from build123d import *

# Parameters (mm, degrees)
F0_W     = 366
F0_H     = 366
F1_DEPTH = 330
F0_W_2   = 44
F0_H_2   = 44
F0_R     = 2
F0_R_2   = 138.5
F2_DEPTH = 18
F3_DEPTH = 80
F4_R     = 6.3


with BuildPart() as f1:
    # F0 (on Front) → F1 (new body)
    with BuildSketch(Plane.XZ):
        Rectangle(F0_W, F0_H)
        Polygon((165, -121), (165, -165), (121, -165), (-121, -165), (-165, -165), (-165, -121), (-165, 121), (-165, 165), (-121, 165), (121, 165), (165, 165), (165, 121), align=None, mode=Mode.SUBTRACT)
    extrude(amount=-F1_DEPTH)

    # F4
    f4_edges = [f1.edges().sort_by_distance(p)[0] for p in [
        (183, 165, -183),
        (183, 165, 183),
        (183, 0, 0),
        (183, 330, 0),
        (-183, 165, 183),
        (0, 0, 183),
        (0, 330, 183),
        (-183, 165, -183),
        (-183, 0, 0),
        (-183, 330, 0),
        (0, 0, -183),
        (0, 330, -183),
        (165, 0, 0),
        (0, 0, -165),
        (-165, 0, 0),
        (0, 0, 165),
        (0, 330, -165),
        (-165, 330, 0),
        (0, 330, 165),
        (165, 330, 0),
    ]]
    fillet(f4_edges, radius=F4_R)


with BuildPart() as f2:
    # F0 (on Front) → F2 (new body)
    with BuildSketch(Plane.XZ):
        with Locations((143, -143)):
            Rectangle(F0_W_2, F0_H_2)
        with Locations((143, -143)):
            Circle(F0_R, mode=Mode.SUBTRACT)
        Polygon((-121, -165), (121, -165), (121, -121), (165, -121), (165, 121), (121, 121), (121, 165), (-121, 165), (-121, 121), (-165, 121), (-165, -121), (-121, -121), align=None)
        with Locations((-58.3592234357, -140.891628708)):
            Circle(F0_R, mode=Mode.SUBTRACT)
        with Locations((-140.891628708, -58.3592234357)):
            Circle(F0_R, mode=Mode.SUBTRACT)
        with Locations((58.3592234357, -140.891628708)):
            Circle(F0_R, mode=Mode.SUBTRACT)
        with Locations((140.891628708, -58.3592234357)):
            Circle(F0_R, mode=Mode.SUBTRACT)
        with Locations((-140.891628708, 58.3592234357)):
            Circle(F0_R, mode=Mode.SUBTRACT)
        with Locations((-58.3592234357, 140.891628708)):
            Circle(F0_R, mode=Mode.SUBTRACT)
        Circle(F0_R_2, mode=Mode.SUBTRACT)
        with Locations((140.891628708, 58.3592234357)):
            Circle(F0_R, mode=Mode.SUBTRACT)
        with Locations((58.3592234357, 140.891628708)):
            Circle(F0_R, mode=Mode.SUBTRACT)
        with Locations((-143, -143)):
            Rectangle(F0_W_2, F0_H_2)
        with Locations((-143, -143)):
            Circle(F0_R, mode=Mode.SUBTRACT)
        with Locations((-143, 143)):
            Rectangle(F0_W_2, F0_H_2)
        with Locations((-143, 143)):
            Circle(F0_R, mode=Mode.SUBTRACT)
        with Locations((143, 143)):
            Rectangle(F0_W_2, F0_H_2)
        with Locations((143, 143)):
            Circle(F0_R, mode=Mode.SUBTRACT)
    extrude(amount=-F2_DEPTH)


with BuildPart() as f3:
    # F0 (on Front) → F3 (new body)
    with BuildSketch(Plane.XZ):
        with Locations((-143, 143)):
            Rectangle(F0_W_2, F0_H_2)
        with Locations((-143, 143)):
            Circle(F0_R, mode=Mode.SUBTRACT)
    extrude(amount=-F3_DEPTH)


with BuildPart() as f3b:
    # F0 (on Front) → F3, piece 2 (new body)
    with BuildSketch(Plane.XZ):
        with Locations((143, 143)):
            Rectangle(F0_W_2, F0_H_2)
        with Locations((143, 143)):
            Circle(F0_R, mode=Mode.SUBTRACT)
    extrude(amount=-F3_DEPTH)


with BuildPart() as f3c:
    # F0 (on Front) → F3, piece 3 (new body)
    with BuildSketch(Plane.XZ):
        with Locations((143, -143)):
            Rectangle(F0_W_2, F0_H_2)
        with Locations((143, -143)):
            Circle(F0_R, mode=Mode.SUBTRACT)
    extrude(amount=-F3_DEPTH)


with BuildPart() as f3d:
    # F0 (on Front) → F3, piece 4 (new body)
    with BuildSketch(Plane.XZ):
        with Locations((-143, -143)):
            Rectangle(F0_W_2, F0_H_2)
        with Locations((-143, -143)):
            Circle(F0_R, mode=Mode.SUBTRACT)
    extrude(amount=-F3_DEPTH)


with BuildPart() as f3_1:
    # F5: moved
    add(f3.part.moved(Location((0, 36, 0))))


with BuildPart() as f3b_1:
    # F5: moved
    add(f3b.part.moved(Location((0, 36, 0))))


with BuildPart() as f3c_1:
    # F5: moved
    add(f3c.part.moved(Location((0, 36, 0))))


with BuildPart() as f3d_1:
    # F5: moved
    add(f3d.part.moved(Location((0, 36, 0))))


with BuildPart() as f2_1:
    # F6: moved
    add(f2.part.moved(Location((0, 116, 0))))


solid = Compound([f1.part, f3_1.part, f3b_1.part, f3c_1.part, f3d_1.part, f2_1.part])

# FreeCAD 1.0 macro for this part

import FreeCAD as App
import Part
import Sketcher
from FreeCAD import Vector


def edges_at(feature, points):
    """Names of the edges that pass closest to the given points."""
    edges = feature.Shape.Edges
    near = lambda p: min(range(len(edges)), key=lambda i: edges[i].distToShape(Part.Vertex(*p))[0])
    return sorted({f"Edge{near(p) + 1}" for p in points})


def add_polygon(sketch, points):
    """Adds a closed chain of lines whose ends are joined by coincident constraints."""
    first, n = sketch.GeometryCount, len(points)
    for a, b in zip(points, points[1:] + points[:1]):
        sketch.addGeometry(Part.LineSegment(App.Vector(*a, 0), App.Vector(*b, 0)), False)
    for i in range(n):
        sketch.addConstraint(Sketcher.Constraint("Coincident", first + i, 2, first + (i + 1) % n, 1))

doc = App.newDocument("Part")
body = doc.addObject("PartDesign::Body", "Body")

sketch1 = body.newObject("Sketcher::SketchObject", "Sketch")
sketch1.AttachmentSupport = (doc.getObject("XZ_Plane"), [""])
sketch1.MapMode = "FlatFace"
add_polygon(sketch1, [(-183, 183), (-183, -183), (183, -183), (183, 183)])
add_polygon(sketch1, [(165, 165), (165, -165), (-165, -165), (-165, 165)])
sketch1.addConstraint([
    Sketcher.Constraint("Vertical", 0),
    Sketcher.Constraint("Horizontal", 1),
    Sketcher.Constraint("Vertical", 2),
    Sketcher.Constraint("Horizontal", 3),
    Sketcher.Constraint("Vertical", 4),
    Sketcher.Constraint("Horizontal", 5),
    Sketcher.Constraint("Vertical", 6),
    Sketcher.Constraint("Horizontal", 7),
    Sketcher.Constraint("Symmetric", 0, 2, 2, 2, -1, 1),
    Sketcher.Constraint("Symmetric", 4, 2, 6, 2, -1, 1),
    Sketcher.Constraint("Equal", 3, 0),
    Sketcher.Constraint("Equal", 7, 4),
    Sketcher.Constraint("DistanceX", 1, 1, 1, 2, 366.0),
    Sketcher.Constraint("DistanceX", 5, 2, 5, 1, 330.0),
])
pad1 = body.newObject("PartDesign::Pad", "Pad")
pad1.Profile = sketch1
pad1.Length = 330
pad1.Reversed = True
doc.recompute()

fillet = body.newObject("PartDesign::Fillet", "Fillet")
fillet.Base = (pad1, edges_at(pad1, [
    (183, 165, -183),
    (183, 165, 183),
    (183, 0, 0),
    (183, 330, 0),
    (-183, 165, 183),
    (0, 0, 183),
    (0, 330, 183),
    (-183, 165, -183),
    (-183, 0, 0),
    (-183, 330, 0),
    (0, 0, -183),
    (0, 330, -183),
    (165, 0, 0),
    (0, 0, -165),
    (-165, 0, 0),
    (0, 0, 165),
    (0, 330, -165),
    (-165, 330, 0),
    (0, 330, 165),
    (165, 330, 0),
]))
fillet.Radius = 6.3
body2 = doc.addObject("PartDesign::Body", "Body001")

sketch2 = body2.newObject("Sketcher::SketchObject", "Sketch001")
sketch2.AttachmentSupport = (doc.getObject("XZ_Plane001"), [""])
sketch2.MapMode = "FlatFace"
add_polygon(sketch2, [(165, -165), (165, 165), (-165, 165), (-165, -165)])
sketch2.addGeometry(Part.Circle(Vector(-143, -143, 0), Vector(0, 0, 1), 2), False)
sketch2.addGeometry(Part.Circle(Vector(-58.359223, -140.891629, 0), Vector(0, 0, 1), 2), False)
sketch2.addGeometry(Part.Circle(Vector(-140.891629, -58.359223, 0), Vector(0, 0, 1), 2), False)
sketch2.addGeometry(Part.Circle(Vector(58.359223, -140.891629, 0), Vector(0, 0, 1), 2), False)
sketch2.addGeometry(Part.Circle(Vector(143, -143, 0), Vector(0, 0, 1), 2), False)
sketch2.addGeometry(Part.Circle(Vector(140.891629, -58.359223, 0), Vector(0, 0, 1), 2), False)
sketch2.addGeometry(Part.Circle(Vector(-140.891629, 58.359223, 0), Vector(0, 0, 1), 2), False)
sketch2.addGeometry(Part.Circle(Vector(-143, 143, 0), Vector(0, 0, 1), 2), False)
sketch2.addGeometry(Part.Circle(Vector(-58.359223, 140.891629, 0), Vector(0, 0, 1), 2), False)
sketch2.addGeometry(Part.Circle(Vector(0, 0, 0), Vector(0, 0, 1), 138.5), False)
sketch2.addGeometry(Part.Circle(Vector(140.891629, 58.359223, 0), Vector(0, 0, 1), 2), False)
sketch2.addGeometry(Part.Circle(Vector(58.359223, 140.891629, 0), Vector(0, 0, 1), 2), False)
sketch2.addGeometry(Part.Circle(Vector(143, 143, 0), Vector(0, 0, 1), 2), False)
sketch2.addConstraint([
    Sketcher.Constraint("Vertical", 0),
    Sketcher.Constraint("Horizontal", 1),
    Sketcher.Constraint("Vertical", 2),
    Sketcher.Constraint("Horizontal", 3),
    Sketcher.Constraint("Coincident", 13, 3, -1, 1),
    Sketcher.Constraint("Equal", 4, 5),
    Sketcher.Constraint("Equal", 5, 6),
    Sketcher.Constraint("Equal", 6, 7),
    Sketcher.Constraint("Equal", 7, 8),
    Sketcher.Constraint("Equal", 8, 9),
    Sketcher.Constraint("Equal", 9, 10),
    Sketcher.Constraint("Equal", 10, 11),
    Sketcher.Constraint("Equal", 11, 12),
    Sketcher.Constraint("Equal", 12, 14),
    Sketcher.Constraint("Equal", 14, 15),
    Sketcher.Constraint("Equal", 15, 16),
    Sketcher.Constraint("Symmetric", 9, 3, 10, 3, -1, 1),
    Sketcher.Constraint("Symmetric", 8, 3, 11, 3, -1, 1),
    Sketcher.Constraint("Symmetric", 7, 3, 12, 3, -1, 1),
    Sketcher.Constraint("Symmetric", 6, 3, 14, 3, -1, 1),
    Sketcher.Constraint("Symmetric", 5, 3, 15, 3, -1, 1),
    Sketcher.Constraint("Symmetric", 4, 3, 16, 3, -1, 1),
    Sketcher.Constraint("Symmetric", 0, 2, 2, 2, -1, 1),
    Sketcher.Constraint("Symmetric", 5, 3, 7, 3, -2),
    Sketcher.Constraint("Symmetric", 4, 3, 8, 3, -2),
    Sketcher.Constraint("Symmetric", 6, 3, 9, 3, -2),
    Sketcher.Constraint("Equal", 3, 0),
    Sketcher.Constraint("Diameter", 4, 4.0),
    Sketcher.Constraint("Diameter", 13, 277.0),
    Sketcher.Constraint("DistanceX", 1, 2, 1, 1, 330.0),
    Sketcher.Constraint("DistanceX", 4, 3, -1, 1, 143.0),
    Sketcher.Constraint("DistanceY", 4, 3, -1, 1, 143.0),
    Sketcher.Constraint("DistanceY", 5, 3, -1, 1, 140.891629),
    Sketcher.Constraint("DistanceX", 6, 3, -1, 1, 140.891629),
    Sketcher.Constraint("DistanceX", 5, 3, -1, 1, 58.359223),
    Sketcher.Constraint("DistanceY", 6, 3, -1, 1, 58.359223),
])
pad2 = body2.newObject("PartDesign::Pad", "Pad001")
pad2.Profile = sketch2
pad2.Length = 18
pad2.Reversed = True
body3 = doc.addObject("PartDesign::Body", "Body002")

sketch3 = body3.newObject("Sketcher::SketchObject", "Sketch002")
sketch3.AttachmentSupport = (doc.getObject("XZ_Plane002"), [""])
sketch3.MapMode = "FlatFace"
add_polygon(sketch3, [(-165, 165), (-165, 121), (-121, 121), (-121, 165)])
sketch3.addGeometry(Part.Circle(Vector(-143, 143, 0), Vector(0, 0, 1), 2), False)
sketch3.addConstraint([
    Sketcher.Constraint("Vertical", 0),
    Sketcher.Constraint("Horizontal", 1),
    Sketcher.Constraint("Vertical", 2),
    Sketcher.Constraint("Horizontal", 3),
    Sketcher.Constraint("Equal", 3, 0),
    Sketcher.Constraint("Diameter", 4, 4.0),
    Sketcher.Constraint("DistanceX", 1, 1, 1, 2, 44.0),
    Sketcher.Constraint("DistanceX", 4, 3, -1, 1, 143.0),
    Sketcher.Constraint("DistanceY", -1, 1, 4, 3, 143.0),
    Sketcher.Constraint("DistanceX", 0, 2, -1, 1, 165.0),
    Sketcher.Constraint("DistanceY", -1, 1, 0, 2, 121.0),
])
pad3 = body3.newObject("PartDesign::Pad", "Pad002")
pad3.Profile = sketch3
pad3.Length = 80
pad3.Reversed = True
body4 = doc.addObject("PartDesign::Body", "Body003")

sketch4 = body4.newObject("Sketcher::SketchObject", "Sketch003")
sketch4.AttachmentSupport = (doc.getObject("XZ_Plane003"), [""])
sketch4.MapMode = "FlatFace"
add_polygon(sketch4, [(121, 165), (121, 121), (165, 121), (165, 165)])
sketch4.addGeometry(Part.Circle(Vector(143, 143, 0), Vector(0, 0, 1), 2), False)
sketch4.addConstraint([
    Sketcher.Constraint("Vertical", 0),
    Sketcher.Constraint("Horizontal", 1),
    Sketcher.Constraint("Vertical", 2),
    Sketcher.Constraint("Horizontal", 3),
    Sketcher.Constraint("Equal", 3, 0),
    Sketcher.Constraint("Diameter", 4, 4.0),
    Sketcher.Constraint("DistanceX", 1, 1, 1, 2, 44.0),
    Sketcher.Constraint("DistanceX", -1, 1, 4, 3, 143.0),
    Sketcher.Constraint("DistanceY", -1, 1, 4, 3, 143.0),
    Sketcher.Constraint("DistanceX", -1, 1, 0, 2, 121.0),
    Sketcher.Constraint("DistanceY", -1, 1, 0, 2, 121.0),
])
pad4 = body4.newObject("PartDesign::Pad", "Pad003")
pad4.Profile = sketch4
pad4.Length = 80
pad4.Reversed = True
body5 = doc.addObject("PartDesign::Body", "Body004")

sketch5 = body5.newObject("Sketcher::SketchObject", "Sketch004")
sketch5.AttachmentSupport = (doc.getObject("XZ_Plane004"), [""])
sketch5.MapMode = "FlatFace"
add_polygon(sketch5, [(121, -121), (121, -165), (165, -165), (165, -121)])
sketch5.addGeometry(Part.Circle(Vector(143, -143, 0), Vector(0, 0, 1), 2), False)
sketch5.addConstraint([
    Sketcher.Constraint("Vertical", 0),
    Sketcher.Constraint("Horizontal", 1),
    Sketcher.Constraint("Vertical", 2),
    Sketcher.Constraint("Horizontal", 3),
    Sketcher.Constraint("Equal", 3, 0),
    Sketcher.Constraint("Diameter", 4, 4.0),
    Sketcher.Constraint("DistanceX", 1, 1, 1, 2, 44.0),
    Sketcher.Constraint("DistanceX", -1, 1, 4, 3, 143.0),
    Sketcher.Constraint("DistanceY", 4, 3, -1, 1, 143.0),
    Sketcher.Constraint("DistanceX", -1, 1, 0, 2, 121.0),
    Sketcher.Constraint("DistanceY", 0, 2, -1, 1, 165.0),
])
pad5 = body5.newObject("PartDesign::Pad", "Pad004")
pad5.Profile = sketch5
pad5.Length = 80
pad5.Reversed = True
body6 = doc.addObject("PartDesign::Body", "Body005")

sketch6 = body6.newObject("Sketcher::SketchObject", "Sketch005")
sketch6.AttachmentSupport = (doc.getObject("XZ_Plane005"), [""])
sketch6.MapMode = "FlatFace"
add_polygon(sketch6, [(-165, -121), (-165, -165), (-121, -165), (-121, -121)])
sketch6.addGeometry(Part.Circle(Vector(-143, -143, 0), Vector(0, 0, 1), 2), False)
sketch6.addConstraint([
    Sketcher.Constraint("Vertical", 0),
    Sketcher.Constraint("Horizontal", 1),
    Sketcher.Constraint("Vertical", 2),
    Sketcher.Constraint("Horizontal", 3),
    Sketcher.Constraint("Equal", 3, 0),
    Sketcher.Constraint("Diameter", 4, 4.0),
    Sketcher.Constraint("DistanceX", 1, 1, 1, 2, 44.0),
    Sketcher.Constraint("DistanceX", 4, 3, -1, 1, 143.0),
    Sketcher.Constraint("DistanceY", 4, 3, -1, 1, 143.0),
    Sketcher.Constraint("DistanceX", 0, 2, -1, 1, 165.0),
    Sketcher.Constraint("DistanceY", 0, 2, -1, 1, 165.0),
])
pad6 = body6.newObject("PartDesign::Pad", "Pad005")
pad6.Profile = sketch6
pad6.Length = 80
pad6.Reversed = True
body7 = doc.addObject("PartDesign::Body", "Body006")
doc.recompute()

body3.Placement = App.Placement(Vector(0, 36, 0), App.Rotation(Vector(0, 0, 1), 0))
boolean = body7.newObject("PartDesign::Boolean", "Boolean")
boolean.Type = "Fuse"
boolean.addObjects([body3])
body8 = doc.addObject("PartDesign::Body", "Body007")
doc.recompute()

body4.Placement = App.Placement(Vector(0, 36, 0), App.Rotation(Vector(0, 0, 1), 0))
boolean2 = body8.newObject("PartDesign::Boolean", "Boolean001")
boolean2.Type = "Fuse"
boolean2.addObjects([body4])
body9 = doc.addObject("PartDesign::Body", "Body008")
doc.recompute()

body5.Placement = App.Placement(Vector(0, 36, 0), App.Rotation(Vector(0, 0, 1), 0))
boolean3 = body9.newObject("PartDesign::Boolean", "Boolean002")
boolean3.Type = "Fuse"
boolean3.addObjects([body5])
body10 = doc.addObject("PartDesign::Body", "Body009")
doc.recompute()

body6.Placement = App.Placement(Vector(0, 36, 0), App.Rotation(Vector(0, 0, 1), 0))
boolean4 = body10.newObject("PartDesign::Boolean", "Boolean003")
boolean4.Type = "Fuse"
boolean4.addObjects([body6])
body11 = doc.addObject("PartDesign::Body", "Body010")
doc.recompute()

body2.Placement = App.Placement(Vector(0, 116, 0), App.Rotation(Vector(0, 0, 1), 0))
boolean5 = body11.newObject("PartDesign::Boolean", "Boolean004")
boolean5.Type = "Fuse"
boolean5.addObjects([body2])

doc.recompute()
